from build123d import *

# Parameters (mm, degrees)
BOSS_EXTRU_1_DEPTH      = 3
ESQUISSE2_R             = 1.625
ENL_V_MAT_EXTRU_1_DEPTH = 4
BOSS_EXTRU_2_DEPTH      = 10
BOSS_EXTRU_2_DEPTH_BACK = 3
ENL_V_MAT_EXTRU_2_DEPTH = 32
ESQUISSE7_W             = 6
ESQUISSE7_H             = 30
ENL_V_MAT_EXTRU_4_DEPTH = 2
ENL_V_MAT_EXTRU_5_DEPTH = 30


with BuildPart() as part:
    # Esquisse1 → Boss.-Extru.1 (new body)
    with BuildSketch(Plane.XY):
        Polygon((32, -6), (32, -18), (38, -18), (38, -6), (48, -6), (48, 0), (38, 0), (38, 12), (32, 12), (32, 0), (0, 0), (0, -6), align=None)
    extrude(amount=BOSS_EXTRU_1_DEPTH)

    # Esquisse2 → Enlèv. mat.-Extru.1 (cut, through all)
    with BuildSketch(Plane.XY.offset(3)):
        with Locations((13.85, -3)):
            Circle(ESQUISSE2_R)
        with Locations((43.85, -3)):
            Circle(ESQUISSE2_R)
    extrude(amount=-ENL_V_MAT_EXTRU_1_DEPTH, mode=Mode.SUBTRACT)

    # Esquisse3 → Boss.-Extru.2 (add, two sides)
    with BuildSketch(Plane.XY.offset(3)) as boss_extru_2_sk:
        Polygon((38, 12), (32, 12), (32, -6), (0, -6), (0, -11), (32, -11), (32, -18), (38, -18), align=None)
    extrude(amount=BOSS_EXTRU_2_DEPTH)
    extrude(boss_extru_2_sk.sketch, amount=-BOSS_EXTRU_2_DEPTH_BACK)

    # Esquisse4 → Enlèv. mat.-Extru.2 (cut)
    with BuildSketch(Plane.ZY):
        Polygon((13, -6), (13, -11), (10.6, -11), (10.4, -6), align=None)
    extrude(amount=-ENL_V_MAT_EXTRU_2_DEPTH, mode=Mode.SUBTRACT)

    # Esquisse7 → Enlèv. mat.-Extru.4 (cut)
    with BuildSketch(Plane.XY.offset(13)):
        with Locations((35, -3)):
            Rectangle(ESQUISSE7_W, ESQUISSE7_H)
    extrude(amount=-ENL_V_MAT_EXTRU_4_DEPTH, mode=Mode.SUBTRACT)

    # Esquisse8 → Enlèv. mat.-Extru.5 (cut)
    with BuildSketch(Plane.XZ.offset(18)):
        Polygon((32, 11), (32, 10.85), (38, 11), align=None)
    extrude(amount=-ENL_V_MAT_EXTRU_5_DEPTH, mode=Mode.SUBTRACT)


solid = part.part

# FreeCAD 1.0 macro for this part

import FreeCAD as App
import Part
import Sketcher

doc = App.newDocument("Part")
body = doc.addObject("PartDesign::Body", "Body")

sketch1 = doc.addObject("Sketcher::SketchObject", "Sketch")
body.addObject(sketch1)
sketch1.AttachmentSupport = (doc.XY_Plane, [""])
sketch1.MapMode = "FlatFace"
sketch1.addGeometry([
    Part.LineSegment(App.Vector(32, -6, 0), App.Vector(32, -18, 0)),
    Part.LineSegment(App.Vector(32, -18, 0), App.Vector(38, -18, 0)),
    Part.LineSegment(App.Vector(38, -18, 0), App.Vector(38, -6, 0)),
    Part.LineSegment(App.Vector(38, -6, 0), App.Vector(48, -6, 0)),
    Part.LineSegment(App.Vector(48, -6, 0), App.Vector(48, 0, 0)),
    Part.LineSegment(App.Vector(48, 0, 0), App.Vector(38, 0, 0)),
    Part.LineSegment(App.Vector(38, 0, 0), App.Vector(38, 12, 0)),
    Part.LineSegment(App.Vector(38, 12, 0), App.Vector(32, 12, 0)),
    Part.LineSegment(App.Vector(32, 12, 0), App.Vector(32, 0, 0)),
    Part.LineSegment(App.Vector(32, 0, 0), App.Vector(0, 0, 0)),
    Part.LineSegment(App.Vector(0, 0, 0), App.Vector(0, -6, 0)),
    Part.LineSegment(App.Vector(0, -6, 0), App.Vector(32, -6, 0)),
], False)
sketch1.addConstraint([
    Sketcher.Constraint("Coincident", 0, 2, 1, 1),
    Sketcher.Constraint("Coincident", 1, 2, 2, 1),
    Sketcher.Constraint("Coincident", 2, 2, 3, 1),
    Sketcher.Constraint("Coincident", 3, 2, 4, 1),
    Sketcher.Constraint("Coincident", 4, 2, 5, 1),
    Sketcher.Constraint("Coincident", 5, 2, 6, 1),
    Sketcher.Constraint("Coincident", 6, 2, 7, 1),
    Sketcher.Constraint("Coincident", 7, 2, 8, 1),
    Sketcher.Constraint("Coincident", 8, 2, 9, 1),
    Sketcher.Constraint("Coincident", 9, 2, 10, 1),
    Sketcher.Constraint("Coincident", 10, 2, 11, 1),
    Sketcher.Constraint("Coincident", 11, 2, 0, 1),
    Sketcher.Constraint("Vertical", 0),
    Sketcher.Constraint("Horizontal", 1),
    Sketcher.Constraint("Vertical", 2),
    Sketcher.Constraint("Horizontal", 3),
    Sketcher.Constraint("Vertical", 4),
    Sketcher.Constraint("Horizontal", 5),
    Sketcher.Constraint("Vertical", 6),
    Sketcher.Constraint("Horizontal", 7),
    Sketcher.Constraint("Vertical", 8),
    Sketcher.Constraint("Horizontal", 9),
    Sketcher.Constraint("Vertical", 10),
    Sketcher.Constraint("Horizontal", 11),
    Sketcher.Constraint("Coincident", 9, 2, -1, 1),
    Sketcher.Constraint("PointOnObject", 4, 2, -1),
    Sketcher.Constraint("Horizontal", 3, 2, 10, 2),
    Sketcher.Constraint("Vertical", 2, 2, 5, 2),
    Sketcher.Constraint("Vertical", 0, 2, 7, 2),
    Sketcher.Constraint("Equal", 7, 4),
    Sketcher.Constraint("Equal", 2, 6),
    Sketcher.Constraint("DistanceX", 1, 1, 1, 2, 6.0),
    Sketcher.Constraint("DistanceX", 3, 1, 3, 2, 10.0),
    Sketcher.Constraint("DistanceX", 9, 2, 9, 1, 32.0),
    Sketcher.Constraint("DistanceY", 0, 2, 0, 1, 12.0),
])
pad1 = doc.addObject("PartDesign::Pad", "Pad")
body.addObject(pad1)
pad1.Profile = sketch1
pad1.Length = 3

sketch2 = doc.addObject("Sketcher::SketchObject", "Sketch001")
body.addObject(sketch2)
sketch2.AttachmentSupport = (doc.XY_Plane, [""])
sketch2.MapMode = "FlatFace"
sketch2.AttachmentOffset = App.Placement(App.Vector(0, 0, 3), App.Rotation())
sketch2.addGeometry([
    Part.Circle(App.Vector(13.8, -3, 0), App.Vector(0, 0, 1), 1.6),
    Part.Circle(App.Vector(43.9, -3, 0), App.Vector(0, 0, 1), 1.6),
], False)
sketch2.addConstraint([
    Sketcher.Constraint("Equal", 0, 1),
    Sketcher.Constraint("Horizontal", 0, 3, 1, 3),
    Sketcher.Constraint("Diameter", 0, 3.25),
    Sketcher.Constraint("DistanceY", 0, 3, -1, 1, 3.0),
    Sketcher.Constraint("DistanceX", 0, 3, 1, 3, 30.0),
    Sketcher.Constraint("DistanceX", -1, 1, 0, 3, 13.85),
])
pocket1 = doc.addObject("PartDesign::Pocket", "Pocket")
body.addObject(pocket1)
pocket1.Profile = sketch2
pocket1.Type = "ThroughAll"

sketch3 = doc.addObject("Sketcher::SketchObject", "Sketch002")
body.addObject(sketch3)
sketch3.AttachmentSupport = (doc.XY_Plane, [""])
sketch3.MapMode = "FlatFace"
sketch3.AttachmentOffset = App.Placement(App.Vector(0, 0, 3), App.Rotation())
sketch3.addGeometry([
    Part.LineSegment(App.Vector(38, 12, 0), App.Vector(32, 12, 0)),
    Part.LineSegment(App.Vector(32, 12, 0), App.Vector(32, -6, 0)),
    Part.LineSegment(App.Vector(32, -6, 0), App.Vector(0, -6, 0)),
    Part.LineSegment(App.Vector(0, -6, 0), App.Vector(0, -11, 0)),
    Part.LineSegment(App.Vector(0, -11, 0), App.Vector(32, -11, 0)),
    Part.LineSegment(App.Vector(32, -11, 0), App.Vector(32, -18, 0)),
    Part.LineSegment(App.Vector(32, -18, 0), App.Vector(38, -18, 0)),
    Part.LineSegment(App.Vector(38, -18, 0), App.Vector(38, 12, 0)),
], False)
sketch3.addConstraint([
    Sketcher.Constraint("Coincident", 0, 2, 1, 1),
    Sketcher.Constraint("Coincident", 1, 2, 2, 1),
    Sketcher.Constraint("Coincident", 2, 2, 3, 1),
    Sketcher.Constraint("Coincident", 3, 2, 4, 1),
    Sketcher.Constraint("Coincident", 4, 2, 5, 1),
    Sketcher.Constraint("Coincident", 5, 2, 6, 1),
    Sketcher.Constraint("Coincident", 6, 2, 7, 1),
    Sketcher.Constraint("Coincident", 7, 2, 0, 1),
    Sketcher.Constraint("Horizontal", 0),
    Sketcher.Constraint("Vertical", 1),
    Sketcher.Constraint("Horizontal", 2),
    Sketcher.Constraint("Vertical", 3),
    Sketcher.Constraint("Horizontal", 4),
    Sketcher.Constraint("Vertical", 5),
    Sketcher.Constraint("Horizontal", 6),
    Sketcher.Constraint("Vertical", 7),
    Sketcher.Constraint("PointOnObject", 2, 2, -2),
    Sketcher.Constraint("Vertical", 1, 2, 4, 2),
    Sketcher.Constraint("DistanceX", 0, 2, 0, 1, 6.0),
    Sketcher.Constraint("DistanceX", 2, 2, 2, 1, 32.0),
    Sketcher.Constraint("DistanceY", 1, 2, 1, 1, 18.0),
    Sketcher.Constraint("DistanceY", 3, 2, 3, 1, 5.0),
    Sketcher.Constraint("DistanceY", 5, 2, 5, 1, 7.0),
    Sketcher.Constraint("DistanceY", -1, 1, 0, 2, 12.0),
])
pad2 = doc.addObject("PartDesign::Pad", "Pad001")
body.addObject(pad2)
pad2.Profile = sketch3
pad2.Type = "TwoLengths"
pad2.Length = 10
pad2.Length2 = 3

sketch4 = doc.addObject("Sketcher::SketchObject", "Sketch003")
body.addObject(sketch4)
sketch4.AttachmentSupport = (doc.YZ_Plane, [""])
sketch4.MapMode = "FlatFace"
sketch4.addGeometry([
    Part.LineSegment(App.Vector(-11, 13, 0), App.Vector(-6, 13, 0)),
    Part.LineSegment(App.Vector(-6, 13, 0), App.Vector(-6, 10.4, 0)),
    Part.LineSegment(App.Vector(-6, 10.4, 0), App.Vector(-11, 10.6, 0)),
    Part.LineSegment(App.Vector(-11, 10.6, 0), App.Vector(-11, 13, 0)),
], False)
sketch4.addConstraint([
    Sketcher.Constraint("Coincident", 0, 2, 1, 1),
    Sketcher.Constraint("Coincident", 1, 2, 2, 1),
    Sketcher.Constraint("Coincident", 2, 2, 3, 1),
    Sketcher.Constraint("Coincident", 3, 2, 0, 1),
    Sketcher.Constraint("Horizontal", 0),
    Sketcher.Constraint("Vertical", 1),
    Sketcher.Constraint("Vertical", 3),
    Sketcher.Constraint("DistanceX", 0, 1, 0, 2, 5.0),
    Sketcher.Constraint("DistanceY", 1, 2, 1, 1, 2.6),
    Sketcher.Constraint("DistanceY", 3, 1, 3, 2, 2.4),
    Sketcher.Constraint("DistanceX", 0, 2, -1, 1, 6.0),
    Sketcher.Constraint("DistanceY", -1, 1, 0, 2, 13.0),
])
pocket2 = doc.addObject("PartDesign::Pocket", "Pocket001")
body.addObject(pocket2)
pocket2.Profile = sketch4
pocket2.Length = 32
pocket2.Reversed = True

sketch5 = doc.addObject("Sketcher::SketchObject", "Sketch004")
body.addObject(sketch5)
sketch5.AttachmentSupport = (doc.XY_Plane, [""])
sketch5.MapMode = "FlatFace"
sketch5.AttachmentOffset = App.Placement(App.Vector(0, 0, 13), App.Rotation())
sketch5.addGeometry([
    Part.LineSegment(App.Vector(32, 12, 0), App.Vector(32, -18, 0)),
    Part.LineSegment(App.Vector(32, -18, 0), App.Vector(38, -18, 0)),
    Part.LineSegment(App.Vector(38, -18, 0), App.Vector(38, 12, 0)),
    Part.LineSegment(App.Vector(38, 12, 0), App.Vector(32, 12, 0)),
], False)
sketch5.addConstraint([
    Sketcher.Constraint("Coincident", 0, 2, 1, 1),
    Sketcher.Constraint("Coincident", 1, 2, 2, 1),
    Sketcher.Constraint("Coincident", 2, 2, 3, 1),
    Sketcher.Constraint("Coincident", 3, 2, 0, 1),
    Sketcher.Constraint("Vertical", 0),
    Sketcher.Constraint("Horizontal", 1),
    Sketcher.Constraint("Vertical", 2),
    Sketcher.Constraint("Horizontal", 3),
    Sketcher.Constraint("DistanceX", 1, 1, 1, 2, 6.0),
    Sketcher.Constraint("DistanceY", 0, 2, 0, 1, 30.0),
    Sketcher.Constraint("DistanceX", -1, 1, 0, 2, 32.0),
    Sketcher.Constraint("DistanceY", 0, 2, -1, 1, 18.0),
])
pocket3 = doc.addObject("PartDesign::Pocket", "Pocket002")
body.addObject(pocket3)
pocket3.Profile = sketch5
pocket3.Length = 2

sketch6 = doc.addObject("Sketcher::SketchObject", "Sketch005")
body.addObject(sketch6)
sketch6.AttachmentSupport = (doc.XZ_Plane, [""])
sketch6.MapMode = "FlatFace"
sketch6.AttachmentOffset = App.Placement(App.Vector(0, 0, 18), App.Rotation())
sketch6.addGeometry([
    Part.LineSegment(App.Vector(32, 11, 0), App.Vector(32, 10.85, 0)),
    Part.LineSegment(App.Vector(32, 10.85, 0), App.Vector(38, 11, 0)),
    Part.LineSegment(App.Vector(38, 11, 0), App.Vector(32, 11, 0)),
], False)
sketch6.addConstraint([
    Sketcher.Constraint("Coincident", 0, 2, 1, 1),
    Sketcher.Constraint("Coincident", 1, 2, 2, 1),
    Sketcher.Constraint("Coincident", 2, 2, 0, 1),
    Sketcher.Constraint("Vertical", 0),
    Sketcher.Constraint("Horizontal", 2),
    Sketcher.Constraint("DistanceX", 2, 2, 2, 1, 6.0),
    Sketcher.Constraint("DistanceX", -1, 1, 0, 2, 32.0),
    Sketcher.Constraint("DistanceY", -1, 1, 1, 2, 11.0),
    Sketcher.Constraint("DistanceY", 0, 2, 0, 1, 0.15),
])
pocket4 = doc.addObject("PartDesign::Pocket", "Pocket003")
body.addObject(pocket4)
pocket4.Profile = sketch6
pocket4.Length = 30

doc.recompute()
